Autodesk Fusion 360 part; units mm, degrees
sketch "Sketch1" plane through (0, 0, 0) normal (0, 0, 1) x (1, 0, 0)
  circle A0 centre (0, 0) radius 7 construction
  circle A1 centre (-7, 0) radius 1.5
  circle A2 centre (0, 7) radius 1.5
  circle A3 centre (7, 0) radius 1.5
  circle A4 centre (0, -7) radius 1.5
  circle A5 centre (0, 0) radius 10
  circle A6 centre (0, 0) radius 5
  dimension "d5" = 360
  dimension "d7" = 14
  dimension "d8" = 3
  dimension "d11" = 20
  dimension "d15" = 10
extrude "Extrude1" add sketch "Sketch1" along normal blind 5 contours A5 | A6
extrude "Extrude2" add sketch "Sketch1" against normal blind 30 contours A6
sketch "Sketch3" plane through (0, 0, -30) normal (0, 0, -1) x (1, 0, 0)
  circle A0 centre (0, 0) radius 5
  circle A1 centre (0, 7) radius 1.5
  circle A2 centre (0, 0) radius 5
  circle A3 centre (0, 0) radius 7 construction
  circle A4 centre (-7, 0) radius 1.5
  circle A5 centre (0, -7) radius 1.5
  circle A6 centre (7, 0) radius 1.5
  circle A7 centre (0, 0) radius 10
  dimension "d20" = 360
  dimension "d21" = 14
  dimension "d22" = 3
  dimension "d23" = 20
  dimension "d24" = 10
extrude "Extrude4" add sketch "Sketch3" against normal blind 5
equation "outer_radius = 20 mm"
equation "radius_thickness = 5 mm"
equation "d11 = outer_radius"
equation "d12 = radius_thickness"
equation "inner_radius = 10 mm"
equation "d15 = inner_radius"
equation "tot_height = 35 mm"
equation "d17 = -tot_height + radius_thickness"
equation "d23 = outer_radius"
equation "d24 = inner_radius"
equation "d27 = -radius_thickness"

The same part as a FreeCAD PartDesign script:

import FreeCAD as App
import Part
import Sketcher
from FreeCAD import Vector

doc = App.newDocument("Part")
params = doc.addObject("Spreadsheet::Sheet", "Params")
for row, (alias, value) in enumerate([
    ("sketch1_diameter", "20 mm"),
    ("sketch1_diameter2", "3 mm"),
    ("pad1_length", "5 mm"),
    ("sketch2_diameter", "10 mm"),
    ("pad2_length", "30 mm"),
    ("sketch3_diameter", "20 mm"),
    ("sketch3_diameter2", "3 mm"),
    ("sketch3_diameter3", "10 mm"),
    ("pad3_length", "5 mm"),
], start=1):
    params.set(f"A{row}", alias)
    params.set(f"B{row}", "=" + value)
    params.setAlias(f"B{row}", alias)

body = doc.addObject("PartDesign::Body", "Body")

sketch1 = doc.addObject("Sketcher::SketchObject", "Sketch")
body.addObject(sketch1)
sketch1.AttachmentSupport = (doc.XY_Plane, [""])
sketch1.MapMode = "FlatFace"
sketch1.addGeometry([
    Part.Circle(Vector(0, 0, 0), Vector(0, 0, 1), 10),
    Part.Circle(Vector(0, -7, 0), Vector(0, 0, 1), 1.5),
    Part.Circle(Vector(-7, 0, 0), Vector(0, 0, 1), 1.5),
    Part.Circle(Vector(7, 0, 0), Vector(0, 0, 1), 1.5),
    Part.Circle(Vector(0, 7, 0), Vector(0, 0, 1), 1.5),
], False)
sketch1.addConstraint([
    Sketcher.Constraint("Coincident", 0, 3, -1, 1),
    Sketcher.Constraint("Equal", 1, 2),
    Sketcher.Constraint("Equal", 2, 3),
    Sketcher.Constraint("Equal", 3, 4),
    Sketcher.Constraint("Symmetric", 2, 3, 3, 3, -1, 1),
    Sketcher.Constraint("Symmetric", 1, 3, 4, 3, -1, 1),
    Sketcher.Constraint("PointOnObject", 1, 3, -2),
    Sketcher.Constraint("PointOnObject", 2, 3, -1),
    Sketcher.Constraint("Diameter", 0, 20.0),
    Sketcher.Constraint("Diameter", 1, 3.0),
    Sketcher.Constraint("DistanceX", 2, 3, 3, 3, 14.0),
    Sketcher.Constraint("DistanceY", 1, 3, 4, 3, 14.0),
])
sketch1.setExpression("Constraints[8]", "Params.sketch1_diameter")
sketch1.setExpression("Constraints[9]", "Params.sketch1_diameter2")
pad1 = doc.addObject("PartDesign::Pad", "Pad")
body.addObject(pad1)
pad1.Profile = sketch1
pad1.setExpression("Length", "Params.pad1_length")

sketch2 = doc.addObject("Sketcher::SketchObject", "Sketch001")
body.addObject(sketch2)
sketch2.AttachmentSupport = (doc.XY_Plane, [""])
sketch2.MapMode = "FlatFace"
sketch2.addGeometry(Part.Circle(Vector(0, 0, 0), Vector(0, 0, 1), 5), False)
sketch2.addConstraint([
    Sketcher.Constraint("Coincident", 0, 3, -1, 1),
    Sketcher.Constraint("Diameter", 0, 10.0),
])
sketch2.setExpression("Constraints[1]", "Params.sketch2_diameter")
pad2 = doc.addObject("PartDesign::Pad", "Pad001")
body.addObject(pad2)
pad2.Profile = sketch2
pad2.setExpression("Length", "Params.pad2_length")
pad2.Reversed = True

sketch3 = doc.addObject("Sketcher::SketchObject", "Sketch002")
body.addObject(sketch3)
sketch3.AttachmentSupport = (doc.XY_Plane, [""])
sketch3.MapMode = "FlatFace"
sketch3.AttachmentOffset = App.Placement(Vector(0, 0, -30), App.Rotation())
sketch3.addGeometry([
    Part.Circle(Vector(0, 0, 0), Vector(0, 0, 1), 10),
    Part.Circle(Vector(0, 7, 0), Vector(0, 0, 1), 1.5),
    Part.Circle(Vector(-7, 0, 0), Vector(0, 0, 1), 1.5),
    Part.Circle(Vector(0, 0, 0), Vector(0, 0, 1), 5),
    Part.Circle(Vector(7, 0, 0), Vector(0, 0, 1), 1.5),
    Part.Circle(Vector(0, -7, 0), Vector(0, 0, 1), 1.5),
], False)
sketch3.addConstraint([
    Sketcher.Constraint("Coincident", 0, 3, -1, 1),
    Sketcher.Constraint("Coincident", 3, 3, -1, 1),
    Sketcher.Constraint("Equal", 1, 2),
    Sketcher.Constraint("Equal", 2, 4),
    Sketcher.Constraint("Equal", 4, 5),
    Sketcher.Constraint("Symmetric", 2, 3, 4, 3, -1, 1),
    Sketcher.Constraint("Symmetric", 1, 3, 5, 3, -1, 1),
    Sketcher.Constraint("PointOnObject", 1, 3, -2),
    Sketcher.Constraint("PointOnObject", 2, 3, -1),
    Sketcher.Constraint("Diameter", 0, 20.0),
    Sketcher.Constraint("Diameter", 1, 3.0),
    Sketcher.Constraint("Diameter", 3, 10.0),
    Sketcher.Constraint("DistanceX", 2, 3, 4, 3, 14.0),
    Sketcher.Constraint("DistanceY", 5, 3, 1, 3, 14.0),
])
sketch3.setExpression("Constraints[9]", "Params.sketch3_diameter")
sketch3.setExpression("Constraints[10]", "Params.sketch3_diameter2")
sketch3.setExpression("Constraints[11]", "Params.sketch3_diameter3")
pad3 = doc.addObject("PartDesign::Pad", "Pad002")
body.addObject(pad3)
pad3.Profile = sketch3
pad3.setExpression("Length", "Params.pad3_length")

doc.recompute()
